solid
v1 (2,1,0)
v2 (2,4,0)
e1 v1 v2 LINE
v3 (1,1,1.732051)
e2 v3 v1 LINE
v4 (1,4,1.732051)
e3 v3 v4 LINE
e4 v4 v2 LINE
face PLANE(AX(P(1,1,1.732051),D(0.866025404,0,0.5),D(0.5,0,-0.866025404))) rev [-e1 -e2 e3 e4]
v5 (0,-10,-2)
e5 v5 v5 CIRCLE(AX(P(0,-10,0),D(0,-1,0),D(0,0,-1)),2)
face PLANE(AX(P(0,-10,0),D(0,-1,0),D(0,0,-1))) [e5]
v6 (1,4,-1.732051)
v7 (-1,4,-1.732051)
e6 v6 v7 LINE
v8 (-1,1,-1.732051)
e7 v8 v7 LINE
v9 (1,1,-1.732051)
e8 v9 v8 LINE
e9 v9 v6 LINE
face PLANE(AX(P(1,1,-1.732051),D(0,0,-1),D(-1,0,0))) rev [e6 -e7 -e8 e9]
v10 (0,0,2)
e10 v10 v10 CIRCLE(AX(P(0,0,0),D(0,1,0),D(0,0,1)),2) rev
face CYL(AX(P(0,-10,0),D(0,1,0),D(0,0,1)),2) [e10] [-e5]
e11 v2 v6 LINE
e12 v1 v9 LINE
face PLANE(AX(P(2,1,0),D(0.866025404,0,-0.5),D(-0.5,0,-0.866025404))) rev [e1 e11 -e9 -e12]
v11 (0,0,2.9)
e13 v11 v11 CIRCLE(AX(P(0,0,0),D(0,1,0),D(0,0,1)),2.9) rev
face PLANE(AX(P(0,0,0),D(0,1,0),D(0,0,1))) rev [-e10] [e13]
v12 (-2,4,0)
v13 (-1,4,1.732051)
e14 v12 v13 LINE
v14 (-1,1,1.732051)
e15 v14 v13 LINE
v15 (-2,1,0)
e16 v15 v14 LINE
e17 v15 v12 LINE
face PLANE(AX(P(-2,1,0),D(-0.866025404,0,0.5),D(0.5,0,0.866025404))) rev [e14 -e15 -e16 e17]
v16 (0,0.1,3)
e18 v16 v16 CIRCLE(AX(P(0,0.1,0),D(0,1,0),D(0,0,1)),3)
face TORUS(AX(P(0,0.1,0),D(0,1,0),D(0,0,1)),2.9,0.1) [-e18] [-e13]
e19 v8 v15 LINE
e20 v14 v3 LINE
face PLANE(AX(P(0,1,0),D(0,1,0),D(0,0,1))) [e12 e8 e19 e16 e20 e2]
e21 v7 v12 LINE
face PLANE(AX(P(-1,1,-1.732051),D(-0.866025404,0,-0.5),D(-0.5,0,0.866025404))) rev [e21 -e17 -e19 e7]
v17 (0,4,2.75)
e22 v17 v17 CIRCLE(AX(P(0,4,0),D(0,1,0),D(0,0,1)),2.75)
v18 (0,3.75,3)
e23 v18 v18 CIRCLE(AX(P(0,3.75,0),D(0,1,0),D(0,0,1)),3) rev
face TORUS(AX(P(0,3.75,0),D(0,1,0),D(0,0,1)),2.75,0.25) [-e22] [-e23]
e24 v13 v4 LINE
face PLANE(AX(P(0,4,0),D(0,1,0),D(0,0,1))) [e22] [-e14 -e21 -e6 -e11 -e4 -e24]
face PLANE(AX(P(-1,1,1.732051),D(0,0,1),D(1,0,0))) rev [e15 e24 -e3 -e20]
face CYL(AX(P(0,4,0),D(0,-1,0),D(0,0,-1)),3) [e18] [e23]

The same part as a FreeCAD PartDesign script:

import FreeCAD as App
import Part
import Sketcher
from FreeCAD import Vector
Q = App.Units.Quantity


def edges_at(feature, points):
    """Names of the edges that pass closest to the given points."""
    edges = feature.Shape.Edges
    near = lambda p: min(range(len(edges)), key=lambda i: edges[i].distToShape(Part.Vertex(*p))[0])
    return sorted({f"Edge{near(p) + 1}" for p in points})

doc = App.newDocument("Part")
body = doc.addObject("PartDesign::Body", "Body")

# Sketch on XZ plane
sketch1 = body.newObject("Sketcher::SketchObject", "Sketch")
sketch1.AttachmentSupport = (doc.getObject("XZ_Plane"), [""])
sketch1.MapMode = "FlatFace"
sketch1.addGeometry(Part.Circle(Vector(0, 0, 0), Vector(0, 0, 1), 3), False)
sketch1.addConstraint([
    Sketcher.Constraint("Coincident", 0, 3, -1, 1),
    Sketcher.Constraint("Diameter", 0, Q("6 mm")),
])
pad1 = body.newObject("PartDesign::Pad", "Pad")
pad1.Profile = sketch1
pad1.Length = 4
pad1.Reversed = True
doc.recompute()

fillet = body.newObject("PartDesign::Fillet", "Fillet")
fillet.Base = (pad1, edges_at(pad1, [(0, 4, -3)]))
fillet.Radius = 0.25

# Sketch on XZ plane
sketch2 = body.newObject("Sketcher::SketchObject", "Sketch001")
sketch2.AttachmentSupport = (doc.getObject("XZ_Plane"), [""])
sketch2.MapMode = "FlatFace"
sketch2.AttachmentOffset = App.Placement(Vector(0, 0, -4), App.Rotation())
sketch2.addGeometry([
    Part.LineSegment(Vector(2, 0, 0), Vector(1, -1.7, 0)),  # 0
    Part.LineSegment(Vector(1, -1.7, 0), Vector(-1, -1.7, 0)),  # 1
    Part.LineSegment(Vector(-1, -1.7, 0), Vector(-2, 0, 0)),  # 2
    Part.LineSegment(Vector(-2, 0, 0), Vector(-1, 1.7, 0)),  # 3
    Part.LineSegment(Vector(-1, 1.7, 0), Vector(1, 1.7, 0)),  # 4
    Part.LineSegment(Vector(1, 1.7, 0), Vector(2, 0, 0)),  # 5
], False)
sketch2.addConstraint([
    Sketcher.Constraint("Coincident", 0, 2, 1, 1),
    Sketcher.Constraint("Coincident", 1, 2, 2, 1),
    Sketcher.Constraint("Coincident", 2, 2, 3, 1),
    Sketcher.Constraint("Coincident", 3, 2, 4, 1),
    Sketcher.Constraint("Coincident", 4, 2, 5, 1),
    Sketcher.Constraint("Coincident", 5, 2, 0, 1),
    Sketcher.Constraint("Horizontal", 1),
    Sketcher.Constraint("Horizontal", 4),
    Sketcher.Constraint("Symmetric", 0, 2, 3, 2, -1, 1),
    Sketcher.Constraint("Symmetric", 2, 2, 5, 2, -1, 1),
    Sketcher.Constraint("PointOnObject", 2, 2, -1),
    Sketcher.Constraint("Parallel", 2, 5),
    Sketcher.Constraint("Vertical", 1, 2, 3, 2),
    Sketcher.Constraint("DistanceX", 1, 2, 1, 1, Q("2 mm")),
    Sketcher.Constraint("Angle", 0, Q("-120 deg")),
    Sketcher.Constraint("Distance", 0, Q("2 mm")),
])
pocket1 = body.newObject("PartDesign::Pocket", "Pocket")
pocket1.Profile = sketch2
pocket1.Length = 3
pocket1.Reversed = True
doc.recompute()

fillet2 = body.newObject("PartDesign::Fillet", "Fillet001")
fillet2.Base = (pocket1, edges_at(pocket1, [(0, 0, -3)]))
fillet2.Radius = 0.1

# Sketch on XZ plane
sketch3 = body.newObject("Sketcher::SketchObject", "Sketch002")
sketch3.AttachmentSupport = (doc.getObject("XZ_Plane"), [""])
sketch3.MapMode = "FlatFace"
sketch3.addGeometry(Part.Circle(Vector(0, 0, 0), Vector(0, 0, 1), 2), False)
sketch3.addConstraint([
    Sketcher.Constraint("Coincident", 0, 3, -1, 1),
    Sketcher.Constraint("Diameter", 0, Q("4 mm")),
])
pad2 = body.newObject("PartDesign::Pad", "Pad001")
pad2.Profile = sketch3
pad2.Length = 10

doc.recompute()
